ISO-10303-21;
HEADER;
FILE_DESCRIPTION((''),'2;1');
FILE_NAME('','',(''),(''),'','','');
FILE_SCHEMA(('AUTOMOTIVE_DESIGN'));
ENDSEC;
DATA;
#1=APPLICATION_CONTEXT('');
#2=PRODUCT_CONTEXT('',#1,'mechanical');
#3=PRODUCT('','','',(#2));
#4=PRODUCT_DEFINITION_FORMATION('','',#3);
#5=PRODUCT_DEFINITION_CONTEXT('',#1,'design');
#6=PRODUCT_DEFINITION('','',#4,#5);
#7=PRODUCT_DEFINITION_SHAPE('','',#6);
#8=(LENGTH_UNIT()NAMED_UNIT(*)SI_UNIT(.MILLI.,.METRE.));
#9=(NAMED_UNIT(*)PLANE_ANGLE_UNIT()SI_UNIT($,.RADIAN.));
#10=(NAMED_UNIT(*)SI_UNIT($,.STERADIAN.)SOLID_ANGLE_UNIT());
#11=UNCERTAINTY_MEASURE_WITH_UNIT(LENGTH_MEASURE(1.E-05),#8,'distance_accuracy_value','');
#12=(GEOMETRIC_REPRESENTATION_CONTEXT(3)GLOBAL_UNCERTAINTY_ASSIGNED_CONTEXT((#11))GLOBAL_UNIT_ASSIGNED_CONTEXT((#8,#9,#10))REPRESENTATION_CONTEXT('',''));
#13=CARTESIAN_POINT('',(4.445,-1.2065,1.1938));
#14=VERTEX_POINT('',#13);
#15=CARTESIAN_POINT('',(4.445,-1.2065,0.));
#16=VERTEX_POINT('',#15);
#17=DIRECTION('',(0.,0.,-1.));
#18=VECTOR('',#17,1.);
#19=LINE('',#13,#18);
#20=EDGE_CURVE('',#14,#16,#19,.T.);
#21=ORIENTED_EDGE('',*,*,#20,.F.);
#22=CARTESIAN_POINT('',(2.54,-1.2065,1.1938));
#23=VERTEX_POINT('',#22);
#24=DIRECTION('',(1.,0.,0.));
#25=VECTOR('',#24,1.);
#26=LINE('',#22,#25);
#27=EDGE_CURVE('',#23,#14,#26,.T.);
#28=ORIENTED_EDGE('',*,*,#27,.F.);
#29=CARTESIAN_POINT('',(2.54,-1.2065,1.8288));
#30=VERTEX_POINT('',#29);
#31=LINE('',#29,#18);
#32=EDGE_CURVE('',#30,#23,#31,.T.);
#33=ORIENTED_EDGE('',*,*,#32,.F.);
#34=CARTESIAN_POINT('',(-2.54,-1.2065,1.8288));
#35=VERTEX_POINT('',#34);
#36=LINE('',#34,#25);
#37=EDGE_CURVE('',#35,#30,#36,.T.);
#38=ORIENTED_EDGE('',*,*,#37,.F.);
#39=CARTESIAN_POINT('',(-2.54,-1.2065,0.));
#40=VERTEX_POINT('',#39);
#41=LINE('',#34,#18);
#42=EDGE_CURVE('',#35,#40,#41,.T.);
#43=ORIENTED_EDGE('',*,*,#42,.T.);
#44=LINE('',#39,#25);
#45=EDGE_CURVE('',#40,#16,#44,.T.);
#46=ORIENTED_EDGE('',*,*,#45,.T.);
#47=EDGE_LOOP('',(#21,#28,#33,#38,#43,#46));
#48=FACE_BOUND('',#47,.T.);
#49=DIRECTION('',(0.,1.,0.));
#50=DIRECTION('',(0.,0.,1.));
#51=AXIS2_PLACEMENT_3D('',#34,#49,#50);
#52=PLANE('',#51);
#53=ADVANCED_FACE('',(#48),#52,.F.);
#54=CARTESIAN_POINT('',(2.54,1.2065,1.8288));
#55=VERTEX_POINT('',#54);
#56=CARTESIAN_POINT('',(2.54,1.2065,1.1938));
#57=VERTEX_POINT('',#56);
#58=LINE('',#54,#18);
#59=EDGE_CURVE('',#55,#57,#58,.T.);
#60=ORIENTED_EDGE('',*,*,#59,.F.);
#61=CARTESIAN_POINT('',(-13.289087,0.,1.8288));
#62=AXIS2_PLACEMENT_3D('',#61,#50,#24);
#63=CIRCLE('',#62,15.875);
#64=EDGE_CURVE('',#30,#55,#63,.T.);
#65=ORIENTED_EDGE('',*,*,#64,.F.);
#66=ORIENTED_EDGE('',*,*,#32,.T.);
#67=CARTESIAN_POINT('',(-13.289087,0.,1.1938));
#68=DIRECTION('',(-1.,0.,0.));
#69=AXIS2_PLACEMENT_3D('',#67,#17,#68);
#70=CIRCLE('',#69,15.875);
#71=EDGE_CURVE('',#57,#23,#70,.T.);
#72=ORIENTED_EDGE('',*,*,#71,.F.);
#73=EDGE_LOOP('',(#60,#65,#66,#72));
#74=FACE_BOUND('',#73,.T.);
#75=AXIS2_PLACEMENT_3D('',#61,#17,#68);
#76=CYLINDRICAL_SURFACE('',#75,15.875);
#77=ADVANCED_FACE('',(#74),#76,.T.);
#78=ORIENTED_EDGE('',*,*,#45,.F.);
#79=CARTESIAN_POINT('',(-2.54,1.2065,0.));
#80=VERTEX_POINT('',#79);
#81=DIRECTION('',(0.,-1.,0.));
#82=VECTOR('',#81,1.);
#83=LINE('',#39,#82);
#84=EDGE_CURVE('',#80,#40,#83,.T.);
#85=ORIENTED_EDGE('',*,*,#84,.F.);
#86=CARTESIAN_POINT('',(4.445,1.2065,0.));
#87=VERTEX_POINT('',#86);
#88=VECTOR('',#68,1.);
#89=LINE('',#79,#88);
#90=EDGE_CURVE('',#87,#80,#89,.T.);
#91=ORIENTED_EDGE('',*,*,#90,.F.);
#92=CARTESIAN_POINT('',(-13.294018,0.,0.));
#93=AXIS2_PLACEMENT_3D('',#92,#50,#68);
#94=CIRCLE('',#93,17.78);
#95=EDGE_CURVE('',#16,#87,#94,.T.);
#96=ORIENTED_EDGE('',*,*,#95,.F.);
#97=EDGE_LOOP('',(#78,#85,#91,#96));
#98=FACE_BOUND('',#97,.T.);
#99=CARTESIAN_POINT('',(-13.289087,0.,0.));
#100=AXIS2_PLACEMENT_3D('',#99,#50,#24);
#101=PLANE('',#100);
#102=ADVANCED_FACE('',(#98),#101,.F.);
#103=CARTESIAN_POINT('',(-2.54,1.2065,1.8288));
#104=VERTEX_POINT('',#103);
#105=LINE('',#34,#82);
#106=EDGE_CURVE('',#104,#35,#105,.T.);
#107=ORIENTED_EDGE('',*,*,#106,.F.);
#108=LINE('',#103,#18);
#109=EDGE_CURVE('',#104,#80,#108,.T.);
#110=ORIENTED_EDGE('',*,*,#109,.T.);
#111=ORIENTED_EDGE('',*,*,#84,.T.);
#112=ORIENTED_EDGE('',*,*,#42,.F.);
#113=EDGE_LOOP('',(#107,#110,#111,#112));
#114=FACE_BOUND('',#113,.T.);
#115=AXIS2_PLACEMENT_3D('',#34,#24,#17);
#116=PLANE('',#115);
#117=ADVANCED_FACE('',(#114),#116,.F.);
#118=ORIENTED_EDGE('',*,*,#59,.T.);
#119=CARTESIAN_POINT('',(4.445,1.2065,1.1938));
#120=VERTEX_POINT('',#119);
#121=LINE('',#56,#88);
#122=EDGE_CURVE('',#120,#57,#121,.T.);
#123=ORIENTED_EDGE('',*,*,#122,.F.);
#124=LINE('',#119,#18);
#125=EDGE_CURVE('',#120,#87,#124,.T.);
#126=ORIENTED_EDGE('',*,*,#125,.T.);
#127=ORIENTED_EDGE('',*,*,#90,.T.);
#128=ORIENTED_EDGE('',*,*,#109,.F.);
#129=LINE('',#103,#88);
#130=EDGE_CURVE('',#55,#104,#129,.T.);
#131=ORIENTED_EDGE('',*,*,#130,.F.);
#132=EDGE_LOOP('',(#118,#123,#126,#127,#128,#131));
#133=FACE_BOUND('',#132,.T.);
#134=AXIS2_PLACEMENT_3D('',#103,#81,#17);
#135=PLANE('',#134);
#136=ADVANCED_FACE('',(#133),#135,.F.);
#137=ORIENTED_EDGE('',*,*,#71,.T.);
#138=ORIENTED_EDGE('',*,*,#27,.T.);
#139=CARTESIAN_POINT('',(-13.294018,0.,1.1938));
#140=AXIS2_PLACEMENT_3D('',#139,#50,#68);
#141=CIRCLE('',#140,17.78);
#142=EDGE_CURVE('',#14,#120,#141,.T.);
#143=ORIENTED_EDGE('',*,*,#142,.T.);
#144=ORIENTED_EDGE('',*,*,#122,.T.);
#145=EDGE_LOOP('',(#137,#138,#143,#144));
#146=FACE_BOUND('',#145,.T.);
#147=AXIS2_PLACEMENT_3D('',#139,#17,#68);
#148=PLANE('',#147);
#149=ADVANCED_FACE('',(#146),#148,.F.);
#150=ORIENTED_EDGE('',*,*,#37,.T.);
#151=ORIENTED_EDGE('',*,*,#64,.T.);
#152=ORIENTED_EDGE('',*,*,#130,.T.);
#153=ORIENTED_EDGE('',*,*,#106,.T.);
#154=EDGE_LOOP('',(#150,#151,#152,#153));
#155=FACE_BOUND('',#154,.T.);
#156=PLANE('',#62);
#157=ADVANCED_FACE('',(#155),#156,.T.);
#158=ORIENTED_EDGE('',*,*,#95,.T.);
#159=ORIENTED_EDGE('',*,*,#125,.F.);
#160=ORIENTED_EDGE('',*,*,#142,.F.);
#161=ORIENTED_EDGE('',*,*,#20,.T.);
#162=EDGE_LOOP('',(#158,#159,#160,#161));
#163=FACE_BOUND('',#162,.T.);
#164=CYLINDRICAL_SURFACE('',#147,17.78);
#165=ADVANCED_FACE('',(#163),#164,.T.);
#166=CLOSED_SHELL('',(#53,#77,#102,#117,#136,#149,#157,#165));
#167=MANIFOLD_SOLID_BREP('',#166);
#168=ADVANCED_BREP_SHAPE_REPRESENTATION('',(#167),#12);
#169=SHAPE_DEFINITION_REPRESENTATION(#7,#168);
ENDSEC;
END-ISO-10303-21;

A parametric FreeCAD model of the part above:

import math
import FreeCAD as App
import Part
import Sketcher

V = App.Vector
Q = App.Units.Quantity

doc = App.newDocument("Part")
body = doc.addObject("PartDesign::Body", "Body")

# Sketch on XY plane
sketch1 = body.newObject("Sketcher::SketchObject", "Sketch")
sketch1.AttachmentSupport = (doc.getObject("XY_Plane"), [""])
sketch1.MapMode = "FlatFace"
sketch1.addGeometry([
    Part.LineSegment(V(-2.5, -1.2, 0), V(2.5, -1.2, 0)),
    Part.ArcOfCircle(Part.Circle(V(-13.3, 0, 0), V(0, 0, 1), 15.9), math.radians(-4.36), math.radians(4.36)),
    Part.LineSegment(V(2.5, 1.2, 0), V(-2.5, 1.2, 0)),
    Part.LineSegment(V(-2.5, 1.2, 0), V(-2.5, -1.2, 0)),
], False)
sketch1.addConstraint([
    Sketcher.Constraint("Coincident", 0, 2, 1, 1),
    Sketcher.Constraint("Coincident", 1, 2, 2, 1),
    Sketcher.Constraint("Coincident", 2, 2, 3, 1),
    Sketcher.Constraint("Coincident", 3, 2, 0, 1),
    Sketcher.Constraint("Horizontal", 0),
    Sketcher.Constraint("Horizontal", 2),
    Sketcher.Constraint("Vertical", 3),
    Sketcher.Constraint("Symmetric", 0, 2, 2, 2, -1, 1),
    Sketcher.Constraint("PointOnObject", 1, 3, -1),
    Sketcher.Constraint("DistanceX", 0, 1, 0, 2, Q("0.2 in")),
    Sketcher.Constraint("Radius", 1, Q("0.625 in")),
    Sketcher.Constraint("DistanceY", 3, 2, 3, 1, Q("0.095 in")),
])
pad1 = body.newObject("PartDesign::Pad", "Pad")
pad1.Profile = sketch1
pad1.Length = Q("0.072 in")

# Sketch on XY plane
sketch2 = body.newObject("Sketcher::SketchObject", "Sketch001")
sketch2.AttachmentSupport = (doc.getObject("XY_Plane"), [""])
sketch2.MapMode = "FlatFace"
sketch2.addGeometry([
    Part.LineSegment(V(4.4, 1.2, 0), V(2.5, 1.2, 0)),
    Part.LineSegment(V(2.5, 1.2, 0), V(2.5, -1.2, 0)),
    Part.LineSegment(V(2.5, -1.2, 0), V(4.4, -1.2, 0)),
    Part.ArcOfCircle(Part.Circle(V(-13.3, 0, 0), V(0, 0, 1), 17.8), math.radians(-3.89), math.radians(3.89)),
], False)
sketch2.addConstraint([
    Sketcher.Constraint("Coincident", 0, 2, 1, 1),
    Sketcher.Constraint("Coincident", 1, 2, 2, 1),
    Sketcher.Constraint("Coincident", 2, 2, 3, 1),
    Sketcher.Constraint("Coincident", 3, 2, 0, 1),
    Sketcher.Constraint("Horizontal", 0),
    Sketcher.Constraint("Vertical", 1),
    Sketcher.Constraint("Horizontal", 2),
    Sketcher.Constraint("Symmetric", 2, 2, 3, 2, -1),
    Sketcher.Constraint("Radius", 3, Q("0.7 in")),
    Sketcher.Constraint("DistanceX", -1, 1, 0, 2, Q("0.1 in")),
    Sketcher.Constraint("DistanceX", 0, 2, 0, 1, Q("0.075 in")),
    Sketcher.Constraint("DistanceY", 1, 2, 1, 1, Q("0.095 in")),
])
pad2 = body.newObject("PartDesign::Pad", "Pad001")
pad2.Profile = sketch2
pad2.Length = Q("0.047 in")

doc.recompute()
